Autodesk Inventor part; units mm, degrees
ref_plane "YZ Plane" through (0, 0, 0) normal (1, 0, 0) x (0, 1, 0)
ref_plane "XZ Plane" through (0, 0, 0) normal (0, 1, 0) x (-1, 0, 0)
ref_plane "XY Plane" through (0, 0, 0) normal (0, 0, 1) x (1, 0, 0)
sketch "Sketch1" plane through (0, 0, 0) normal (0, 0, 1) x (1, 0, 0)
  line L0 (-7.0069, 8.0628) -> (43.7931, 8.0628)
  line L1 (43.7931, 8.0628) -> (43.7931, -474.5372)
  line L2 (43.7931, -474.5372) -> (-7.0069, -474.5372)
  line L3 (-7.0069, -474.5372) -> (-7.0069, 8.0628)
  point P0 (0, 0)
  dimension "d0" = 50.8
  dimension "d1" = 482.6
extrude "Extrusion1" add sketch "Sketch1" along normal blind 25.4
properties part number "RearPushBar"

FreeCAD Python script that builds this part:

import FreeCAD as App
import Part
import Sketcher
from FreeCAD import Vector
Q = App.Units.Quantity

doc = App.newDocument("Part")
params = doc.addObject("Spreadsheet::Sheet", "Params")
for row, (alias, value) in enumerate([
    ("sketch1_width", "2 in"),
    ("sketch1_height", "19 in"),
    ("pad1_length", "1 in"),
], start=1):
    params.set(f"A{row}", alias)
    params.set(f"B{row}", "=" + value)
    params.setAlias(f"B{row}", alias)

body = doc.addObject("PartDesign::Body", "Body")

sketch1 = body.newObject("Sketcher::SketchObject", "Sketch")
sketch1.AttachmentSupport = (doc.getObject("XY_Plane"), [""])
sketch1.MapMode = "FlatFace"
sketch1.addGeometry([
    Part.LineSegment(Vector(44, 8, 0), Vector(-7, 8, 0)),
    Part.LineSegment(Vector(-7, 8, 0), Vector(-7, -475, 0)),
    Part.LineSegment(Vector(-7, -475, 0), Vector(44, -475, 0)),
    Part.LineSegment(Vector(44, -475, 0), Vector(44, 8, 0)),
], False)
sketch1.addConstraint([
    Sketcher.Constraint("Coincident", 0, 2, 1, 1),
    Sketcher.Constraint("Coincident", 1, 2, 2, 1),
    Sketcher.Constraint("Coincident", 2, 2, 3, 1),
    Sketcher.Constraint("Coincident", 3, 2, 0, 1),
    Sketcher.Constraint("Horizontal", 0),
    Sketcher.Constraint("Vertical", 1),
    Sketcher.Constraint("Horizontal", 2),
    Sketcher.Constraint("Vertical", 3),
    Sketcher.Constraint("DistanceX", 0, 2, 0, 1, Q("2 in")),
    Sketcher.Constraint("DistanceY", 1, 2, 1, 1, Q("19 in")),
    Sketcher.Constraint("DistanceX", 0, 2, -1, 1, 7.007),
    Sketcher.Constraint("DistanceY", -1, 1, 0, 2, 8.0628),
])
sketch1.setExpression("Constraints[8]", "Params.sketch1_width")
sketch1.setExpression("Constraints[9]", "Params.sketch1_height")
pad1 = body.newObject("PartDesign::Pad", "Pad")
pad1.Profile = sketch1
pad1.setExpression("Length", "Params.pad1_length")

doc.recompute()
